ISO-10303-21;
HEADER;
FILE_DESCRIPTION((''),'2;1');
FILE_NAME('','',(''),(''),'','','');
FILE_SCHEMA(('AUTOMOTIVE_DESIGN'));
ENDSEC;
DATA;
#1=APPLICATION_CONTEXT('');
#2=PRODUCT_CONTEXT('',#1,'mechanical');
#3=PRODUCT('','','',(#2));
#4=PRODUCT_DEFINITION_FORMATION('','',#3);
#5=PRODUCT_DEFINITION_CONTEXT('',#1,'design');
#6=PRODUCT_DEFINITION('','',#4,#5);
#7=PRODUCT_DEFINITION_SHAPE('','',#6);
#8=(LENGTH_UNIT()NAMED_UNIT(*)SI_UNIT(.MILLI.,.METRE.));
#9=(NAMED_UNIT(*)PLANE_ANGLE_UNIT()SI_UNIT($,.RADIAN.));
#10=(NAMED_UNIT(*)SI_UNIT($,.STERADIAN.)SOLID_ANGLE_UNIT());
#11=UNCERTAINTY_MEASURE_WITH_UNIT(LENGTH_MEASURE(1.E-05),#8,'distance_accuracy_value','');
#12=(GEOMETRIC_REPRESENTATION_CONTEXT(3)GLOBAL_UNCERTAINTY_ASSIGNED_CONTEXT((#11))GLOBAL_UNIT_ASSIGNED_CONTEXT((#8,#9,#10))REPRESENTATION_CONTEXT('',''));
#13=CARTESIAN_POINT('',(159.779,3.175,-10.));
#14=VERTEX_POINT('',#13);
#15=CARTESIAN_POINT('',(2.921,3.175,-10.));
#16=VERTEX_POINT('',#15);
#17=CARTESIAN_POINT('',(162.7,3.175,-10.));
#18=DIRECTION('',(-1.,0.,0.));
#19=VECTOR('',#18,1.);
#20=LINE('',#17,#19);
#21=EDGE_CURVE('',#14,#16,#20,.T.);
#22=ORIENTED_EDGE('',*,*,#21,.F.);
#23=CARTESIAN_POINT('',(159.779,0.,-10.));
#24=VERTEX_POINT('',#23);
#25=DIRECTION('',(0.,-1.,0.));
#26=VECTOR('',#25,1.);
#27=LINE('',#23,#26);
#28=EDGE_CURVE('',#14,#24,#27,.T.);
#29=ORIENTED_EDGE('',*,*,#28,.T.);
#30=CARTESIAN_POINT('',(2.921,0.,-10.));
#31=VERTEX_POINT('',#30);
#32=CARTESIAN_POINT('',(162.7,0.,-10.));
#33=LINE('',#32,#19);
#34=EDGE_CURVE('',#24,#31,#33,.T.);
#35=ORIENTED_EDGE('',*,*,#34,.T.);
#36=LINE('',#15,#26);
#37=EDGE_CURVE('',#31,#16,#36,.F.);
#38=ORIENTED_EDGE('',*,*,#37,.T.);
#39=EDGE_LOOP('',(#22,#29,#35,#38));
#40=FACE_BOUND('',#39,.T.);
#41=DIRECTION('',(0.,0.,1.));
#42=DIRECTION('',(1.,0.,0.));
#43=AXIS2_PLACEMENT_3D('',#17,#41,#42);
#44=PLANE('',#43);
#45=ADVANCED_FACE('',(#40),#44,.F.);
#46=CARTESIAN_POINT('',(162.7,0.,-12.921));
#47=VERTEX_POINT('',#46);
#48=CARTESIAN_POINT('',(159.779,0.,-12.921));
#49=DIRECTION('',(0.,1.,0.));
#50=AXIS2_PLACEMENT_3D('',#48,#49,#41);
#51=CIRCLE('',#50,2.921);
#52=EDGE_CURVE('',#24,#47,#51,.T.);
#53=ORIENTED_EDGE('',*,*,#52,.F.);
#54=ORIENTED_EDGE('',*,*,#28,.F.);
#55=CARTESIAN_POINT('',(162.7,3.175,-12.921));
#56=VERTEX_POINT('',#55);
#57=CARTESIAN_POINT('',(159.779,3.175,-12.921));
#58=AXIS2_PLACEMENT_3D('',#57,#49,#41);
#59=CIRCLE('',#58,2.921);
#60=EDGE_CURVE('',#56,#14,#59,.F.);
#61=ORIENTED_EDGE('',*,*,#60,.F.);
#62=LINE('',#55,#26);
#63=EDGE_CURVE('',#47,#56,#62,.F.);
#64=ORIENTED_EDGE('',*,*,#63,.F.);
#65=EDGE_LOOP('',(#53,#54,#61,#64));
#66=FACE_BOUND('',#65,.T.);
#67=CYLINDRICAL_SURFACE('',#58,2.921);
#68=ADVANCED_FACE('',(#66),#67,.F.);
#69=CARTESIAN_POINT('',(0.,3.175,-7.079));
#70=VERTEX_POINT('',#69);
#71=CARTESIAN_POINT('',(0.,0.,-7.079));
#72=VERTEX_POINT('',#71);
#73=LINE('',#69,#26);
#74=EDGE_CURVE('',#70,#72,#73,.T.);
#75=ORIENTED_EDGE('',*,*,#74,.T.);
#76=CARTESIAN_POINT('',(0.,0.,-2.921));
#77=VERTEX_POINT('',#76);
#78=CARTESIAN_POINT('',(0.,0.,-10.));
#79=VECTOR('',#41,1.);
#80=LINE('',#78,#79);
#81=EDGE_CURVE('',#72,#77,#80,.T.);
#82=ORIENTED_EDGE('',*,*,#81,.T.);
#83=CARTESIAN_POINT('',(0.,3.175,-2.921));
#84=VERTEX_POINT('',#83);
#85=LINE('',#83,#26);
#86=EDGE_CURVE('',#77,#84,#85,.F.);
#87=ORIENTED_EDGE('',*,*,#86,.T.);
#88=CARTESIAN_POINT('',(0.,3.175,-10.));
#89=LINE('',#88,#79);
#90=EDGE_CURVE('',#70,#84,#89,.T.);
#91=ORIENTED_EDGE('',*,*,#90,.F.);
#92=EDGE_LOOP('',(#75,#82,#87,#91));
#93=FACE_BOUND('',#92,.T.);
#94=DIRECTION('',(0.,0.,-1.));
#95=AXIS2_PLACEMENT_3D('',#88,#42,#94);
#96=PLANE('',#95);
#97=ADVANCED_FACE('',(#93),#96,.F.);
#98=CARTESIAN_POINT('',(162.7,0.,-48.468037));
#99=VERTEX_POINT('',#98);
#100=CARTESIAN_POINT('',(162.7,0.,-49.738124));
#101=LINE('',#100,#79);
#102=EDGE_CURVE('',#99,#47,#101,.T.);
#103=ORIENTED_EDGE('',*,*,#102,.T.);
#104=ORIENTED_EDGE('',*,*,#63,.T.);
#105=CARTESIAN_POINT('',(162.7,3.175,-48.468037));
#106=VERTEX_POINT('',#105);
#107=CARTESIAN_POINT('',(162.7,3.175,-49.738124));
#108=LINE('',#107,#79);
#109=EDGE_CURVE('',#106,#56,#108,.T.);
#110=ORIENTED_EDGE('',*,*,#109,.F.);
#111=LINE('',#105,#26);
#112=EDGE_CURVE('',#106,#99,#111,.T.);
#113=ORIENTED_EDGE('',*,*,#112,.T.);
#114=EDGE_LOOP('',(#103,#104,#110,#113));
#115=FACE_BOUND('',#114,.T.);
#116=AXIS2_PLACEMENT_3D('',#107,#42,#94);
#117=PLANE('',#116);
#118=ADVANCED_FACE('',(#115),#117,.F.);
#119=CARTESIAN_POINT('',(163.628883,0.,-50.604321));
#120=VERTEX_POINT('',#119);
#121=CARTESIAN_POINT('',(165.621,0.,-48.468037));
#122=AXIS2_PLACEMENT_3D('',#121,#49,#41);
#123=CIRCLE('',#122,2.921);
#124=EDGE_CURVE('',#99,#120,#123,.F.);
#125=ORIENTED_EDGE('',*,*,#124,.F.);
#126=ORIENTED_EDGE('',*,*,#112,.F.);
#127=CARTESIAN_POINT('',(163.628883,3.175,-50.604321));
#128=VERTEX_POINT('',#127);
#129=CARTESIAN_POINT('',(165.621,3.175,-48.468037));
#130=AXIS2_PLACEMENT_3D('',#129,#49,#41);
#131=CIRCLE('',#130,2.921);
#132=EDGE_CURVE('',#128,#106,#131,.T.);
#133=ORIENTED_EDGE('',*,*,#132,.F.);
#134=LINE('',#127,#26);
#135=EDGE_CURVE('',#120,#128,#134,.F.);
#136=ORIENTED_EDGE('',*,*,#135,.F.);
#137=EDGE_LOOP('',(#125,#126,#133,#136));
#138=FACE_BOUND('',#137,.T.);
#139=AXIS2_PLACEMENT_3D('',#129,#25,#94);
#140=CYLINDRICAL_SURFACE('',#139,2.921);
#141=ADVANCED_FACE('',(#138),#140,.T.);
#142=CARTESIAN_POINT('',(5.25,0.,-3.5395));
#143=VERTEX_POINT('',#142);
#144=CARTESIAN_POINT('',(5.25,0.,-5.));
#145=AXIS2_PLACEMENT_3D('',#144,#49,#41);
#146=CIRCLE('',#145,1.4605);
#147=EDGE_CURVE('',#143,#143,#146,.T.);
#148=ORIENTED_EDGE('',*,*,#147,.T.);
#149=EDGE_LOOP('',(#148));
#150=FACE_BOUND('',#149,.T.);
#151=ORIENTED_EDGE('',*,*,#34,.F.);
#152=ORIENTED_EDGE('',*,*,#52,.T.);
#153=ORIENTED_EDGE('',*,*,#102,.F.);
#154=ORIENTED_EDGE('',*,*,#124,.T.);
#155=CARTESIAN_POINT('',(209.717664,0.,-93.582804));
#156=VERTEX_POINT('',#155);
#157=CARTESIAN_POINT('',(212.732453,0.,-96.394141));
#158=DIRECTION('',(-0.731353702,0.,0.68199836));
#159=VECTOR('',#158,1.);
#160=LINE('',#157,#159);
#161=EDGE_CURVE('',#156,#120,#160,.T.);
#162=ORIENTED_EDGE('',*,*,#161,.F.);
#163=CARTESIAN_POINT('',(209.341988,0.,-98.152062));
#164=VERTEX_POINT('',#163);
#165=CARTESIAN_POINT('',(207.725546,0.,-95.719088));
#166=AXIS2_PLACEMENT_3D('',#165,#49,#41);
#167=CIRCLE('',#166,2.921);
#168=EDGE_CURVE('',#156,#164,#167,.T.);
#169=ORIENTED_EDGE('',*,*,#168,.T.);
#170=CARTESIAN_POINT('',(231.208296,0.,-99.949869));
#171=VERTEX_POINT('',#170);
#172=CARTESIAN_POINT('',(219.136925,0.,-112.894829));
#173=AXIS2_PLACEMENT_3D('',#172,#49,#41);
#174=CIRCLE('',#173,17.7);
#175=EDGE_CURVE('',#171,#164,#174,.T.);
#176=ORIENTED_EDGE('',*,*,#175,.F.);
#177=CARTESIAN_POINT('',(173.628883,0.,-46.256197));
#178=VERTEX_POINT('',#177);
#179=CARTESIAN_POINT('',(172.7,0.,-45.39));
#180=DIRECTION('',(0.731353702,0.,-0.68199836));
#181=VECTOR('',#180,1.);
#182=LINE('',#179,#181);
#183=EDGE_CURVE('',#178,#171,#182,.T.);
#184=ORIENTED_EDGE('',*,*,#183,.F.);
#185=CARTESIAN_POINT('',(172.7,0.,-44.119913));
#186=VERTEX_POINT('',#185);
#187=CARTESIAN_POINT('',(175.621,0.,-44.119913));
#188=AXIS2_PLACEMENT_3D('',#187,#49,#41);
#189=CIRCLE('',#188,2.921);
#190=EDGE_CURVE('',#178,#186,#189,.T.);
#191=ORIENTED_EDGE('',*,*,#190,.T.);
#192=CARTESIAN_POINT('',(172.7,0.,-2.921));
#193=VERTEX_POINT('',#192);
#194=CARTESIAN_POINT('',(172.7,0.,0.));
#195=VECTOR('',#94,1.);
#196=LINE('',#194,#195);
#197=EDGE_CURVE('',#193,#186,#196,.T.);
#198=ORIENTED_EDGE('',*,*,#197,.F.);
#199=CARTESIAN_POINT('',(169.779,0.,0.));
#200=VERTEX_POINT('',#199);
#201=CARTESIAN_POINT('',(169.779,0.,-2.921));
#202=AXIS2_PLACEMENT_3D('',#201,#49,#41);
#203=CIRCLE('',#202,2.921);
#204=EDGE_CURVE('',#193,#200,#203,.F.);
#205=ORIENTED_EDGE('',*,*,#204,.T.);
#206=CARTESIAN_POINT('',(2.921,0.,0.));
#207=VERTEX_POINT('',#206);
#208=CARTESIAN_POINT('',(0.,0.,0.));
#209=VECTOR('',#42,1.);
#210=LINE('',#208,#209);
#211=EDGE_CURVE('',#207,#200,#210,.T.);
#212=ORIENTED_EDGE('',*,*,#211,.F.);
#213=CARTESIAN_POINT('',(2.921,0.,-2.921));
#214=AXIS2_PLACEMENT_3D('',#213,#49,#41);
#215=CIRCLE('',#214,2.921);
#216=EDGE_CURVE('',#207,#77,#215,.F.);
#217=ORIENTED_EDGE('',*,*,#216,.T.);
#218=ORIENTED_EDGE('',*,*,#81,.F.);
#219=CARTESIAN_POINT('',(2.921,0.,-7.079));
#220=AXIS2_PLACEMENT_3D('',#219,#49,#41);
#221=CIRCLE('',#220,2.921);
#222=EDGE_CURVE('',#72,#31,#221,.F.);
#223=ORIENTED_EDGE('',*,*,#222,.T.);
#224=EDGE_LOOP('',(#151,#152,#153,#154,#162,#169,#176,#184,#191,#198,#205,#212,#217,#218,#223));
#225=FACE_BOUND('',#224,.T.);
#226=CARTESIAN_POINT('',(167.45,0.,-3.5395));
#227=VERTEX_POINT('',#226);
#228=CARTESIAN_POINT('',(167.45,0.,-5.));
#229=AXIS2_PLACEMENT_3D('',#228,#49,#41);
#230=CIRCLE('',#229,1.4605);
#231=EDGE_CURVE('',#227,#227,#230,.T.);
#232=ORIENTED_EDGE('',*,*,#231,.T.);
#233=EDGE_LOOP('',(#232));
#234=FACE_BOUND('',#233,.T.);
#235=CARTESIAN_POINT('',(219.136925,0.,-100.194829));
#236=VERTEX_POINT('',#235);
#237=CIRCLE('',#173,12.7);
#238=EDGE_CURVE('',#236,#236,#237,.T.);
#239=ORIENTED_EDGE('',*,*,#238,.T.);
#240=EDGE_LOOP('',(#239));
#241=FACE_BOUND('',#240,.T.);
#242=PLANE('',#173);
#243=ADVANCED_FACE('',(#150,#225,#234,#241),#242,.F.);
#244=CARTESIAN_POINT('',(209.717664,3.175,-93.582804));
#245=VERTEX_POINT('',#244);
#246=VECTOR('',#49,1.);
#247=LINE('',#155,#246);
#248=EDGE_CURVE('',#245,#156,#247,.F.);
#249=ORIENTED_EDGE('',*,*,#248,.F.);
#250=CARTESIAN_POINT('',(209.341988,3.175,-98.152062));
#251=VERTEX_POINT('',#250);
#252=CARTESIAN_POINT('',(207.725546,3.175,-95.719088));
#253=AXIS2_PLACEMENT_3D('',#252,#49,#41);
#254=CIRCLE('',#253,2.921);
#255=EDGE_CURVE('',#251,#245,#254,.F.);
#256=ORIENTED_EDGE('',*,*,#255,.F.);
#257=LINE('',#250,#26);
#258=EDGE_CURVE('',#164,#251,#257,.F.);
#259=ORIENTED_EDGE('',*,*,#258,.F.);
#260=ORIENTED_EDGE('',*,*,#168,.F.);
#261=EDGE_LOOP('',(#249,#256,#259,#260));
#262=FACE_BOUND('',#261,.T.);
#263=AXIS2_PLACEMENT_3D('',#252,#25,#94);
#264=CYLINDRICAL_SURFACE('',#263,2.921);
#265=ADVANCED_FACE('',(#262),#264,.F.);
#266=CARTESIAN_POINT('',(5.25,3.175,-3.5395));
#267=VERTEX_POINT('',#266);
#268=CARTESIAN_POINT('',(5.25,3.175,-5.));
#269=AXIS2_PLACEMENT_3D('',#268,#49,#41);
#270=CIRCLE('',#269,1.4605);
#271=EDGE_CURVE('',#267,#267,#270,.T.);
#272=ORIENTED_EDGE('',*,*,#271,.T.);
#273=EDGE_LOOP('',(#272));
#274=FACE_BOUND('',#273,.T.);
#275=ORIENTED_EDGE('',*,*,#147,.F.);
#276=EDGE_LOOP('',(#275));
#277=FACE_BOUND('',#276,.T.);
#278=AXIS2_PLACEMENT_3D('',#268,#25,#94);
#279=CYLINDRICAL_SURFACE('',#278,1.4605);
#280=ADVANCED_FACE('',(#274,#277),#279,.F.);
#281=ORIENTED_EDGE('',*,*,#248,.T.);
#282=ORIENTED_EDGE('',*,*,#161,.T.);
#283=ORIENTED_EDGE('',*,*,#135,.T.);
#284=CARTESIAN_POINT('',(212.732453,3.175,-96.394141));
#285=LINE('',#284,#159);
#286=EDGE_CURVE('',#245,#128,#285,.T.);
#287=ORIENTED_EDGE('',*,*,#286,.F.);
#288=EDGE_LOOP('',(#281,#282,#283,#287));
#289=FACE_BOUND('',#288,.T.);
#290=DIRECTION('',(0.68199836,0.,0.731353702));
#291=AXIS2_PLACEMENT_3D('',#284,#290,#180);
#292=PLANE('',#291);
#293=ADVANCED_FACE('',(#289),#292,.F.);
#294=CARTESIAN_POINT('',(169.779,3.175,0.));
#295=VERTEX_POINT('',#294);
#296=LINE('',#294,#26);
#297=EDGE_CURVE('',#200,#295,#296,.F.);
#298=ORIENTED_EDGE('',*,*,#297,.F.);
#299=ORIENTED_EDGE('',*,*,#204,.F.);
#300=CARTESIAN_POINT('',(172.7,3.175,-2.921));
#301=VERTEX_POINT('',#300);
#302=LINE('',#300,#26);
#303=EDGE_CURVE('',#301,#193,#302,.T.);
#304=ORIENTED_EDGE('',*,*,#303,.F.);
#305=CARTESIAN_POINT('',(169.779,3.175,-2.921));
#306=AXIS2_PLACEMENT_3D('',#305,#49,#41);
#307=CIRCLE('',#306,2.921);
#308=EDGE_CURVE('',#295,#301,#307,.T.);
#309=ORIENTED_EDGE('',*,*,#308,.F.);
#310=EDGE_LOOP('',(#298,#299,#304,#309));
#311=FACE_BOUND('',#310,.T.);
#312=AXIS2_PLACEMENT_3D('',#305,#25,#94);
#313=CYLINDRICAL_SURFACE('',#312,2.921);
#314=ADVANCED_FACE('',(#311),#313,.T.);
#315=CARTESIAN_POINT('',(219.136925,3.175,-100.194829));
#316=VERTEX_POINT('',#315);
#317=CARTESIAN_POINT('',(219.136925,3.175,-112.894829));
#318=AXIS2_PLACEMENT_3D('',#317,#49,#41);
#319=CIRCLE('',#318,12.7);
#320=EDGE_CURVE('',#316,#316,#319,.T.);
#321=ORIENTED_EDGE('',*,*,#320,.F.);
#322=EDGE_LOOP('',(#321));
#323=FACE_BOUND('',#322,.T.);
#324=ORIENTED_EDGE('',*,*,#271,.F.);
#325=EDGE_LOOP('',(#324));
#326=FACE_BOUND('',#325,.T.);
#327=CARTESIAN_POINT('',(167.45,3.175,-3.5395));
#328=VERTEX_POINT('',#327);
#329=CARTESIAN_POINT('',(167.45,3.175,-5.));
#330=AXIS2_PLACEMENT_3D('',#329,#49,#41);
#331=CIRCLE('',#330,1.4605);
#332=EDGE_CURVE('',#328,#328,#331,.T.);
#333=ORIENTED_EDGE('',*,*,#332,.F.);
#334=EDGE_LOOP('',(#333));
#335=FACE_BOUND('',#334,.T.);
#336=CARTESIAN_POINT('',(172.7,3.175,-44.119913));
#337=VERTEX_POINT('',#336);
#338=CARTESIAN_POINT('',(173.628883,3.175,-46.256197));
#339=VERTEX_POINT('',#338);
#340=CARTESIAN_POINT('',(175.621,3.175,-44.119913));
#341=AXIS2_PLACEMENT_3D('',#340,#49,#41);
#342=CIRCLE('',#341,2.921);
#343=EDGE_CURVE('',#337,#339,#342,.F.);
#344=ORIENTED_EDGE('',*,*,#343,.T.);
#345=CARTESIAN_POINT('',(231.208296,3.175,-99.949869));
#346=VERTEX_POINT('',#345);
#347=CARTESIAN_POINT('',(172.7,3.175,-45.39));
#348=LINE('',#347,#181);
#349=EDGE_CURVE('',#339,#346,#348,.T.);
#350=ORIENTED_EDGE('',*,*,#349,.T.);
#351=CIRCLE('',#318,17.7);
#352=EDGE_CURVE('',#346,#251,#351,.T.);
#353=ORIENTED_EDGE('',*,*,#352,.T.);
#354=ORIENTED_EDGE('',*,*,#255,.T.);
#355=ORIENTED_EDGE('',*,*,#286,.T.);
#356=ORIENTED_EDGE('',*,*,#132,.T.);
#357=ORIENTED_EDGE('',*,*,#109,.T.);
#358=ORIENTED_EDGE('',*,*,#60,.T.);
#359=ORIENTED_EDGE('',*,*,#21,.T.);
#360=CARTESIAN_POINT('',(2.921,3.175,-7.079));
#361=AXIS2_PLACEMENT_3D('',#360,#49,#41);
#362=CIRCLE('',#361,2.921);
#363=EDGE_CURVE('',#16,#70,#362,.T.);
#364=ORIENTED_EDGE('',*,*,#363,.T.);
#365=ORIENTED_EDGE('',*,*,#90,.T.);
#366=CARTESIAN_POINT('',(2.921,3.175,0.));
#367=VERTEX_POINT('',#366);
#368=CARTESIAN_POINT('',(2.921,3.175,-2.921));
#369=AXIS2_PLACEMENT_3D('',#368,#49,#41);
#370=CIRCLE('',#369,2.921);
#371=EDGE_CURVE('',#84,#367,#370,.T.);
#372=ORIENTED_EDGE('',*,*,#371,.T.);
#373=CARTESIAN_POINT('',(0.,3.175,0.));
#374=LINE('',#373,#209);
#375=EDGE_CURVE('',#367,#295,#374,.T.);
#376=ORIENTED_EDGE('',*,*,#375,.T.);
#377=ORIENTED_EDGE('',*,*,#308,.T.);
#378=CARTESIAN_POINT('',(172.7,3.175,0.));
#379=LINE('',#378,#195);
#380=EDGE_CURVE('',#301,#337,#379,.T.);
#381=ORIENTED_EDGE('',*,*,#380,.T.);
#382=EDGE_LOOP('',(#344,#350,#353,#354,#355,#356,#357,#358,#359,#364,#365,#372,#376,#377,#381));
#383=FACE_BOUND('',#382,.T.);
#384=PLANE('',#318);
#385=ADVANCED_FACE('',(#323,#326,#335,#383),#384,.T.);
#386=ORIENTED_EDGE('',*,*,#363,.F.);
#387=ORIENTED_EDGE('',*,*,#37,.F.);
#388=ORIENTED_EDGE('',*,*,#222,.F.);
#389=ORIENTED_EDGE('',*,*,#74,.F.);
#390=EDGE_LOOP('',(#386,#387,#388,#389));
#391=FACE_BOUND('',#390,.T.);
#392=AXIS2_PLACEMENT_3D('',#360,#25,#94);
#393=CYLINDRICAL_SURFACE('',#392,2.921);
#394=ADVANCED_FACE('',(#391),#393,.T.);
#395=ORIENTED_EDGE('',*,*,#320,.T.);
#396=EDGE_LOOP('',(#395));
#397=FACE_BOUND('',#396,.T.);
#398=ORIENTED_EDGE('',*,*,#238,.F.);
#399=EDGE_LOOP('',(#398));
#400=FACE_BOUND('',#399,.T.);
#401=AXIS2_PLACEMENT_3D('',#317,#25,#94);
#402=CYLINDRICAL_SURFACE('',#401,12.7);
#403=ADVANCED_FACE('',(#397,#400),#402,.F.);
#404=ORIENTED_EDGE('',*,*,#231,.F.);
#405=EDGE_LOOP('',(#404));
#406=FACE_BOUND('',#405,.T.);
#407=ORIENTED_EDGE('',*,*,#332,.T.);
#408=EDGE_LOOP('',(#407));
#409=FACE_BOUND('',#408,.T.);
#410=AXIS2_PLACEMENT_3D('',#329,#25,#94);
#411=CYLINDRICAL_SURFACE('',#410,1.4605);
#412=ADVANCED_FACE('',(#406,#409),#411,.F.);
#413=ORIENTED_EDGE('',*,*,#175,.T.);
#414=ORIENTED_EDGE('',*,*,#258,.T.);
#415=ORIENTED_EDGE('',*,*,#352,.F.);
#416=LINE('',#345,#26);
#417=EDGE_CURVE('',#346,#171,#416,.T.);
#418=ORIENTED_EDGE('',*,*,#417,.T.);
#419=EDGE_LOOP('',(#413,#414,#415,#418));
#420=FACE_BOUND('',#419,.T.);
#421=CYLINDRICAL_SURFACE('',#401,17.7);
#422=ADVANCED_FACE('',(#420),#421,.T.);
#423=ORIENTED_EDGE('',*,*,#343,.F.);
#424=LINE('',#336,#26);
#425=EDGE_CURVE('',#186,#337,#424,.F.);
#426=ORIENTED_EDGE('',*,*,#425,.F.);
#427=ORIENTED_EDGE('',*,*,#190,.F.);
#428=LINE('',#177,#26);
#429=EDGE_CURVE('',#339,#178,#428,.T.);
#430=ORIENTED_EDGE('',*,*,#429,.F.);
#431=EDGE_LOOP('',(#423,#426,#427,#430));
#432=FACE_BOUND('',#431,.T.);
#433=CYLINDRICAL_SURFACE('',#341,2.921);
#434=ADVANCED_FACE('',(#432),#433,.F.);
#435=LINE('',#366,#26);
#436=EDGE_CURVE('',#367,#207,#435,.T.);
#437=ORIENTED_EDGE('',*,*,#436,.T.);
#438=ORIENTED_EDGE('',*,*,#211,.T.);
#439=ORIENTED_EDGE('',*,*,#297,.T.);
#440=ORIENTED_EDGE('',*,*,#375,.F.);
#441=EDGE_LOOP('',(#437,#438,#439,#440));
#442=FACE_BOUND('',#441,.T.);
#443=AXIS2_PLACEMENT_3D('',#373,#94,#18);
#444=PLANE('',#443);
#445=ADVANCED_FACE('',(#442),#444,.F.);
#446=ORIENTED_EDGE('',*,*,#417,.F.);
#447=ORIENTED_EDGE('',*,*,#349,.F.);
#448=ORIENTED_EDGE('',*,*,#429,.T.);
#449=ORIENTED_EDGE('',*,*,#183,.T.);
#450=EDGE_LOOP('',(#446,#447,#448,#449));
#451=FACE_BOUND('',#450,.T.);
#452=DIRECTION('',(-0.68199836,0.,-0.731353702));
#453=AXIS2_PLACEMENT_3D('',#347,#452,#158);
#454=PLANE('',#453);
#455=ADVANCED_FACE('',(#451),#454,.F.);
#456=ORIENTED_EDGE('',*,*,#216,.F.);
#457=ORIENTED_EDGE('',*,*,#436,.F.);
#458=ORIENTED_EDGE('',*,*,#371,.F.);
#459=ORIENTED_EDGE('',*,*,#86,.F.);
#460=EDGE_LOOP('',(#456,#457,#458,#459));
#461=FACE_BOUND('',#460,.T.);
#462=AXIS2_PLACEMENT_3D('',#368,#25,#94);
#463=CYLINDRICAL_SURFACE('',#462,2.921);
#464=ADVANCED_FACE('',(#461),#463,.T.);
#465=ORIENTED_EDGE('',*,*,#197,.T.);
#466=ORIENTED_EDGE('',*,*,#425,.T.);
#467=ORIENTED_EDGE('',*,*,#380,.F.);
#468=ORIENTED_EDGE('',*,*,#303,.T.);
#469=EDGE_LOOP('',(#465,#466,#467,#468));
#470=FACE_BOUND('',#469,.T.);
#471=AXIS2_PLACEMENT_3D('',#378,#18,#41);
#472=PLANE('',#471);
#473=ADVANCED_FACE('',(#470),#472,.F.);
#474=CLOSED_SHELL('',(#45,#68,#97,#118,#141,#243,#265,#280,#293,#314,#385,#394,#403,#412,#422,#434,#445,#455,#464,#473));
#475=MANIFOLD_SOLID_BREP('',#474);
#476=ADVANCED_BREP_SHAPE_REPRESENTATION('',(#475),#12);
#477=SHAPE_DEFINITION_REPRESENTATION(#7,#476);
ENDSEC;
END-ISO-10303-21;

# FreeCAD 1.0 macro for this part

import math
import FreeCAD as App
import Part
import Sketcher

V = App.Vector
Q = App.Units.Quantity


def edges_at(feature, points):
    """Names of the edges that pass closest to the given points."""
    edges = feature.Shape.Edges
    near = lambda p: min(range(len(edges)), key=lambda i: edges[i].distToShape(Part.Vertex(*p))[0])
    return sorted({f"Edge{near(p) + 1}" for p in points})

doc = App.newDocument("Part")
body = doc.addObject("PartDesign::Body", "Body")

# Sketch on XZ plane
sketch1 = body.newObject("Sketcher::SketchObject", "Sketch")
sketch1.AttachmentSupport = (doc.getObject("XZ_Plane"), [""])
sketch1.MapMode = "FlatFace"
sketch1.addGeometry([
    Part.LineSegment(V(0, 0, 0), V(172.7, 0, 0)),  # 0
    Part.LineSegment(V(172.7, 0, 0), V(172.7, -45.39, 0)),  # 1
    Part.LineSegment(V(172.7, -45.39, 0), V(231.208296, -99.949869, 0)),  # 2
    Part.ArcOfCircle(Part.Circle(V(219.136925, -112.894829, 0), V(0, 0, 1), 17.7), math.radians(111.212909), math.radians(407)),  # 3
    Part.LineSegment(V(212.732453, -96.394141, 0), V(162.7, -49.738124, 0)),  # 4
    Part.LineSegment(V(162.7, -49.738124, 0), V(162.7, -10, 0)),  # 5
    Part.LineSegment(V(162.7, -10, 0), V(0, -10, 0)),  # 6
    Part.LineSegment(V(0, -10, 0), V(0, 0, 0)),  # 7
    Part.Circle(V(5.25, -5, 0), V(0, 0, 1), 1.4605),  # 8
    Part.Circle(V(167.45, -5, 0), V(0, 0, 1), 1.4605),  # 9
    Part.Circle(V(219.136925, -112.894829, 0), V(0, 0, 1), 12.7),  # 10
], False)
sketch1.addConstraint([
    Sketcher.Constraint("Coincident", 0, 2, 1, 1),
    Sketcher.Constraint("Coincident", 1, 2, 2, 1),
    Sketcher.Constraint("Tangent", 2, 2, 3, 2),
    Sketcher.Constraint("Coincident", 3, 1, 4, 1),
    Sketcher.Constraint("Coincident", 4, 2, 5, 1),
    Sketcher.Constraint("Coincident", 5, 2, 6, 1),
    Sketcher.Constraint("Coincident", 6, 2, 7, 1),
    Sketcher.Constraint("Coincident", 7, 2, 0, 1),
    Sketcher.Constraint("Horizontal", 0),
    Sketcher.Constraint("Vertical", 1),
    Sketcher.Constraint("Vertical", 5),
    Sketcher.Constraint("Horizontal", 6),
    Sketcher.Constraint("Vertical", 7),
    Sketcher.Constraint("Coincident", 7, 2, -1, 1),
    Sketcher.Constraint("Coincident", 10, 3, 3, 3),
    Sketcher.Constraint("Equal", 8, 9),
    Sketcher.Constraint("Parallel", 2, 4),
    Sketcher.Constraint("Horizontal", 8, 3, 9, 3),
    Sketcher.Constraint("Diameter", 10, 25.4),
    Sketcher.Constraint("Radius", 3, 17.7),
    Sketcher.Constraint("DistanceY", 7, 1, 7, 2, 10.0),
    Sketcher.Constraint("Angle", 2, Q("-43 deg")),
    Sketcher.Constraint("Distance", 2, 80.0),
    Sketcher.Constraint("Diameter", 8, 2.921),
    Sketcher.Constraint("DistanceX", 0, 1, 0, 2, 172.7),
    Sketcher.Constraint("DistanceX", 6, 2, 6, 1, 162.7),
    Sketcher.Constraint("DistanceY", 8, 3, -1, 1, 5.0),
    Sketcher.Constraint("DistanceY", 1, 2, 1, 1, 45.39),
    Sketcher.Constraint("DistanceX", 8, 3, 9, 3, 162.2),
    Sketcher.Constraint("DistanceX", -1, 1, 8, 3, 5.25),
    Sketcher.Constraint("DistanceY", 5, 1, 5, 2, 39.738124),
])
pad1 = body.newObject("PartDesign::Pad", "Pad")
pad1.Profile = sketch1
pad1.Length = 3.175
pad1.Reversed = True
doc.recompute()

fillet = body.newObject("PartDesign::Fillet", "Fillet")
fillet.Base = (pad1, edges_at(pad1, [
    (0, 1.587, -10),
    (162.7, 1.587, -10),
    (162.7, 1.587, -49.738),
    (212.732, 1.587, -96.394),
    (172.7, 1.587, -45.39),
    (172.7, 1.587, 0),
    (0, 1.587, 0),
]))
fillet.Radius = 2.921

doc.recompute()
